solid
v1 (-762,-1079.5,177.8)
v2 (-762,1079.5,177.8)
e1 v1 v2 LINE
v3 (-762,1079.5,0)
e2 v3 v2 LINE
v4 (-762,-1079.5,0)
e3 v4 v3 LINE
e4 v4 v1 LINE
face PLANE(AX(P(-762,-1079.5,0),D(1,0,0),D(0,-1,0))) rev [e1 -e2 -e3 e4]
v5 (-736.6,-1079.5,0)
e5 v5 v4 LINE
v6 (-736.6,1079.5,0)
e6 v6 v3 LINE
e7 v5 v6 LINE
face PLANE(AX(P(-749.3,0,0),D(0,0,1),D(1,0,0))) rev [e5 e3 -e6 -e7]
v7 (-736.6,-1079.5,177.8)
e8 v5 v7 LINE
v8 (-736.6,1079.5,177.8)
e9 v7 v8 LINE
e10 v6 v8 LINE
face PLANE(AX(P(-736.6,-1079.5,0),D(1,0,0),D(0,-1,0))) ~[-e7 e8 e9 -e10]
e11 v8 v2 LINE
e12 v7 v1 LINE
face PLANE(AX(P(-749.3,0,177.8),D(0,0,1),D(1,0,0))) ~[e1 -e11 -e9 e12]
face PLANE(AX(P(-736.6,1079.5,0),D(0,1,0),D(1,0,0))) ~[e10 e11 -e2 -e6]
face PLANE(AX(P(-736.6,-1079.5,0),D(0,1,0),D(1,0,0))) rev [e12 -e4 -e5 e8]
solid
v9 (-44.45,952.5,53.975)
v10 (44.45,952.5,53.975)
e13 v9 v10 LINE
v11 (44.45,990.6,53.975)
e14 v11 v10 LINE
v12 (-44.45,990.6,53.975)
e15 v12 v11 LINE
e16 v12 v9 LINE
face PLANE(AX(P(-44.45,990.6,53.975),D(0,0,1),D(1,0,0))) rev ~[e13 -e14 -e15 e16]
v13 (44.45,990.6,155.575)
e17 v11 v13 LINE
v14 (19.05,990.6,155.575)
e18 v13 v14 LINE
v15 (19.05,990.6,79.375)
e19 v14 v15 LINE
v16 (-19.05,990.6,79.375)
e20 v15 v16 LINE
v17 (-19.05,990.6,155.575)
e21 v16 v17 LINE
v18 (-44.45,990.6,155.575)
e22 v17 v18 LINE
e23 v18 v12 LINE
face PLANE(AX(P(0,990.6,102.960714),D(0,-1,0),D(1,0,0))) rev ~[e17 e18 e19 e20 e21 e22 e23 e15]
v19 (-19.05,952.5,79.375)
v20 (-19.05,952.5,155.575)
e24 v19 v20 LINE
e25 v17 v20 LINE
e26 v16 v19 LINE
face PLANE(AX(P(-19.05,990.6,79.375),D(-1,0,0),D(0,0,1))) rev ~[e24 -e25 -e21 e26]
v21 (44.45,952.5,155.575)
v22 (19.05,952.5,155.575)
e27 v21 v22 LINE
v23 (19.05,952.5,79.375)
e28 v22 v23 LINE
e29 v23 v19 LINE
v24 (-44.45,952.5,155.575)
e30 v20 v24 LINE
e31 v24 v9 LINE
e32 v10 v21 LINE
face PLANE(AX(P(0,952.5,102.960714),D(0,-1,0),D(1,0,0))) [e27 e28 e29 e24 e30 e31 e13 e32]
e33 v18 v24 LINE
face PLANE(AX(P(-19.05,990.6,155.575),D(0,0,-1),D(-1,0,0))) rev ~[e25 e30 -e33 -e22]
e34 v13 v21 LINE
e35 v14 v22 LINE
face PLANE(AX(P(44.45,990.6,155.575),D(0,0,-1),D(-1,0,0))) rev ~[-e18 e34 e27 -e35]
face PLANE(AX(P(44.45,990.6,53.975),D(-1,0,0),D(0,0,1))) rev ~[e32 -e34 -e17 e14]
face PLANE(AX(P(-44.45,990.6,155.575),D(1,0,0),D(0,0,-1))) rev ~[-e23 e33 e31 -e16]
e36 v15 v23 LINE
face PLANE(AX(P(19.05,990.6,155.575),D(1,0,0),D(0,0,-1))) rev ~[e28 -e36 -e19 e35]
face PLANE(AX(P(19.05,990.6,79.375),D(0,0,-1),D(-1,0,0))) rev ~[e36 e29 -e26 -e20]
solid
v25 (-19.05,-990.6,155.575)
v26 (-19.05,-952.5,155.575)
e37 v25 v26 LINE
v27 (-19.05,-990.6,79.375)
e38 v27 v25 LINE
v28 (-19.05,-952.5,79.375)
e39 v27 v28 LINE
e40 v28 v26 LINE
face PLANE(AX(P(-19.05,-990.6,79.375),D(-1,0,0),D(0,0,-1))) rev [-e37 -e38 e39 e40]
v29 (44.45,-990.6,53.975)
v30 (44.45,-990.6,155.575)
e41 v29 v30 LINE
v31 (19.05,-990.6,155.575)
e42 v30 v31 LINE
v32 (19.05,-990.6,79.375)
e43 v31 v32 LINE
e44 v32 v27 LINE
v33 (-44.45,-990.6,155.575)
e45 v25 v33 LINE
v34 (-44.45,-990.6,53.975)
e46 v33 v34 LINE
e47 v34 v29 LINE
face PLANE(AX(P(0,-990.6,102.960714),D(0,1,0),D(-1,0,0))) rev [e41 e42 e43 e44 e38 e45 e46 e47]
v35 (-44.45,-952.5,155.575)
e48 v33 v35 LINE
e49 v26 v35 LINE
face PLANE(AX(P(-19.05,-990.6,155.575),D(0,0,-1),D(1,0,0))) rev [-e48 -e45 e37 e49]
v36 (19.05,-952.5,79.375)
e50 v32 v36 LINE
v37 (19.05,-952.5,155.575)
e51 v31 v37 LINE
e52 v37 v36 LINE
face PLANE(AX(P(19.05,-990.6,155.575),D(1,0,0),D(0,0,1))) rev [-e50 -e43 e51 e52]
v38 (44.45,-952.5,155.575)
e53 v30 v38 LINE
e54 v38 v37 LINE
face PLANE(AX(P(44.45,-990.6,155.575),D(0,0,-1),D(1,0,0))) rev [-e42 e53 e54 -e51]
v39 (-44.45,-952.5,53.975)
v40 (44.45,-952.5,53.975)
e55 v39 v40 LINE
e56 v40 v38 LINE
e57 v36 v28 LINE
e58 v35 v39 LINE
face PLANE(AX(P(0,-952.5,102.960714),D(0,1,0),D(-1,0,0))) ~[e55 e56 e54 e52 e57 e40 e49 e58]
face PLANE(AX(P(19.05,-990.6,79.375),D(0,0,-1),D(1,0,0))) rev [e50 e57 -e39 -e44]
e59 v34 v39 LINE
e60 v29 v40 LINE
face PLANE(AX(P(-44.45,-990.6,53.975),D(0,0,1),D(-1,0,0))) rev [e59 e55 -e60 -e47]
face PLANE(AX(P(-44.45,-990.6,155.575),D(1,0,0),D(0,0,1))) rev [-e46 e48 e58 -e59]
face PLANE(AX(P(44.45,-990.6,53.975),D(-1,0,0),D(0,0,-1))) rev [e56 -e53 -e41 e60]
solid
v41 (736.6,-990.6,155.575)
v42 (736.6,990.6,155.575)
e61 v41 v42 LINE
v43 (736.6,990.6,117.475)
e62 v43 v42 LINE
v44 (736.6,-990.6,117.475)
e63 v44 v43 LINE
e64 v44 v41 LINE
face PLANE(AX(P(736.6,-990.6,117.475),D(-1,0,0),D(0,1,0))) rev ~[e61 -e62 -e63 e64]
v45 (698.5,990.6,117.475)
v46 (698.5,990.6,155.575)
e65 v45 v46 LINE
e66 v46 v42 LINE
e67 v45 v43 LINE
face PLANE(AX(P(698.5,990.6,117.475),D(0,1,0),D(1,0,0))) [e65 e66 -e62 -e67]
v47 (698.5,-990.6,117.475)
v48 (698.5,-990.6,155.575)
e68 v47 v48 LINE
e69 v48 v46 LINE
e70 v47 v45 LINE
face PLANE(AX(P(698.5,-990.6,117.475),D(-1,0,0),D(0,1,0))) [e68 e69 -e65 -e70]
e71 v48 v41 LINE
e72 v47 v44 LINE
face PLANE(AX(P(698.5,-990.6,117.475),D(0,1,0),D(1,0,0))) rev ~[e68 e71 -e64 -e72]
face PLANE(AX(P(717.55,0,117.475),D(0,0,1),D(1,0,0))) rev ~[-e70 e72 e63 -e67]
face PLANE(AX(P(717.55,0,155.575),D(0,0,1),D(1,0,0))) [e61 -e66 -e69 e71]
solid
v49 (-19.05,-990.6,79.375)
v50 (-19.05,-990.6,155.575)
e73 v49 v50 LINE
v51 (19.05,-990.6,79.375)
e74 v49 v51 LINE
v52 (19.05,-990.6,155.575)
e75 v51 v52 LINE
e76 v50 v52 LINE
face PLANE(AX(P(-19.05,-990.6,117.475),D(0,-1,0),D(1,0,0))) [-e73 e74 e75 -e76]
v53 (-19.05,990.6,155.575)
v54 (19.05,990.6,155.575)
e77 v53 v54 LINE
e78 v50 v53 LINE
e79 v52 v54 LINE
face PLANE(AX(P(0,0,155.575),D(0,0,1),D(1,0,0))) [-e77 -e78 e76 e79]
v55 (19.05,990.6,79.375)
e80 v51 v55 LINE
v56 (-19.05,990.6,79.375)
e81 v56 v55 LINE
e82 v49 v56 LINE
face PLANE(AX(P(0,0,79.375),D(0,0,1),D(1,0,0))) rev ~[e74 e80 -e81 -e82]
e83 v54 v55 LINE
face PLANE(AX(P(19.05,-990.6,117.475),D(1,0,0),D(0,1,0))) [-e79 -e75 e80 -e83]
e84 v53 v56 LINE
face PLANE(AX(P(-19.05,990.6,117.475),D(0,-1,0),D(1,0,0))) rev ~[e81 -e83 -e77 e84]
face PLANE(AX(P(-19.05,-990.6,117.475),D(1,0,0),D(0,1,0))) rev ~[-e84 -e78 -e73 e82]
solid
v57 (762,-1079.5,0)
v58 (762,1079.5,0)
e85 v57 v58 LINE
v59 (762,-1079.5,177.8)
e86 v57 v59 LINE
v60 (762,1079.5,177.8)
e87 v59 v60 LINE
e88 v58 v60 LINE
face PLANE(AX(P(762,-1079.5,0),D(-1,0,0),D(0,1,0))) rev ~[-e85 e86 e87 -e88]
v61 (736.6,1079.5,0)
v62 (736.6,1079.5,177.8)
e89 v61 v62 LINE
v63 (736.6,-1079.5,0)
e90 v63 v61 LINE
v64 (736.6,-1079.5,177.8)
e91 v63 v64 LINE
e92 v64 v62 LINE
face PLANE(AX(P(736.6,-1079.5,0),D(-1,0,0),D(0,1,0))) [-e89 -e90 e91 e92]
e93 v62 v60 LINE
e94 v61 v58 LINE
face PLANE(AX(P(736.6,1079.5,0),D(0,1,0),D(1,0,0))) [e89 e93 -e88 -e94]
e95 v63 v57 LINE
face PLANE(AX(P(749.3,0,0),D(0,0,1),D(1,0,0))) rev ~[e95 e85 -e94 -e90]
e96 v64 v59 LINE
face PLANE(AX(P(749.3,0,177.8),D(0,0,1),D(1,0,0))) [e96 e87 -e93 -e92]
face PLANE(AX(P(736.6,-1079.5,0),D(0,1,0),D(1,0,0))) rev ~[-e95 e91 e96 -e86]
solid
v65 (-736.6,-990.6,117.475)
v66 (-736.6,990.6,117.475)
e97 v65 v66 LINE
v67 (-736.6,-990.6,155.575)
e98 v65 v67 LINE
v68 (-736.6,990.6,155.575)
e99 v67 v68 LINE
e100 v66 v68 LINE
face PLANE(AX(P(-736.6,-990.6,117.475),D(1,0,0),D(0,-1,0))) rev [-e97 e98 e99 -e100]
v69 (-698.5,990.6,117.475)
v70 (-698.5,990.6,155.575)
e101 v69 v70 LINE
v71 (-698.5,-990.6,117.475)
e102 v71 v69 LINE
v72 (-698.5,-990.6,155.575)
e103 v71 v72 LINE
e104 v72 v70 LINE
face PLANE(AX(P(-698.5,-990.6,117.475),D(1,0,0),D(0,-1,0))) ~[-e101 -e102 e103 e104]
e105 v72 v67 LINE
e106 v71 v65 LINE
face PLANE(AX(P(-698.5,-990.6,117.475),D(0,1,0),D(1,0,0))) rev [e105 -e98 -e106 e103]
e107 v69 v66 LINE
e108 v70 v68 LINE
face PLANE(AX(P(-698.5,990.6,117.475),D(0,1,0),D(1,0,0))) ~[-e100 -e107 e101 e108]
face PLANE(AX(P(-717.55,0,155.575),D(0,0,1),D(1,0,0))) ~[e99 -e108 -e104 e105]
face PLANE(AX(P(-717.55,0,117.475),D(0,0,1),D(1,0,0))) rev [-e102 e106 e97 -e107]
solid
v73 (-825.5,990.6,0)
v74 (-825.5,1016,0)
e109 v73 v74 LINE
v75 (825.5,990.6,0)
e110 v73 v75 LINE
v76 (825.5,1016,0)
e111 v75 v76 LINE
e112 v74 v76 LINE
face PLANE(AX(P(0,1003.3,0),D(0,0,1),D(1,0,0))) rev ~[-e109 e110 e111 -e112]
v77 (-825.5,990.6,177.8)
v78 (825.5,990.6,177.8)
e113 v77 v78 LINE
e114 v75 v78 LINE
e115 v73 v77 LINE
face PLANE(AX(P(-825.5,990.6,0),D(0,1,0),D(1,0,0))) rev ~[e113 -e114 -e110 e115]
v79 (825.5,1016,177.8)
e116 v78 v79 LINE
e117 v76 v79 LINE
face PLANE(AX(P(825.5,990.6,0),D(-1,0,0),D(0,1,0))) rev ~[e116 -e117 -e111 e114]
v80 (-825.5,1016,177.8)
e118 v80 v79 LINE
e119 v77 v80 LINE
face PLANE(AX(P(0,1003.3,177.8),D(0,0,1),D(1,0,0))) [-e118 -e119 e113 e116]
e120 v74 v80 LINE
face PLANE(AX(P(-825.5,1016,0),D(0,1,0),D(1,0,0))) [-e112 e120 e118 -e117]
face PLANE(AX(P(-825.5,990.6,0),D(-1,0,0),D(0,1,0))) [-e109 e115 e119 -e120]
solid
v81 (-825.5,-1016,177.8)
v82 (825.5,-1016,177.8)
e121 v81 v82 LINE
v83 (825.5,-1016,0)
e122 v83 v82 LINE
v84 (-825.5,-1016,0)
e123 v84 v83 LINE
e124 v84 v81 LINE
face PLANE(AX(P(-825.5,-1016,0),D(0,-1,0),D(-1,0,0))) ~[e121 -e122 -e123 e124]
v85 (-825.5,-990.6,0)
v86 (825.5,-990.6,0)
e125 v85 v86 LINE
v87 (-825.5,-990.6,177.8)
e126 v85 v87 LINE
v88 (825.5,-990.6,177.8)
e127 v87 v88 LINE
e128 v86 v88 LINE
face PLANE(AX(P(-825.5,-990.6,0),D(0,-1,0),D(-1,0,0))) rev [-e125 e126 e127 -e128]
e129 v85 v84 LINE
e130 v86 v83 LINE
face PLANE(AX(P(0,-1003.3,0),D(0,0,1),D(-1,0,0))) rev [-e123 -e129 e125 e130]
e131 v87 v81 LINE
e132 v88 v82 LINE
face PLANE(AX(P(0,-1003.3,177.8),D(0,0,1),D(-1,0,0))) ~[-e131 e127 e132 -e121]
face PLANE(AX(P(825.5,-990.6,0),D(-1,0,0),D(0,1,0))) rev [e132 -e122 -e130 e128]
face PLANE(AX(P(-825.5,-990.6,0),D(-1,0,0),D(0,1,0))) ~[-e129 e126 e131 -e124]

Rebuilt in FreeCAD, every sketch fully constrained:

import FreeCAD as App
import Part
import Sketcher
Q = App.Units.Quantity


def add_polygon(sketch, points):
    """Adds a closed chain of lines whose ends are joined by coincident constraints."""
    first, n = sketch.GeometryCount, len(points)
    for a, b in zip(points, points[1:] + points[:1]):
        sketch.addGeometry(Part.LineSegment(App.Vector(*a, 0), App.Vector(*b, 0)), False)
    for i in range(n):
        sketch.addConstraint(Sketcher.Constraint("Coincident", first + i, 2, first + (i + 1) % n, 1))

doc = App.newDocument("Part")
body = doc.addObject("PartDesign::Body", "Body")

sketch1 = body.newObject("Sketcher::SketchObject", "Sketch")
sketch1.AttachmentSupport = (doc.getObject("XY_Plane"), [""])
sketch1.MapMode = "FlatFace"
add_polygon(sketch1, [(-825.5, 1016), (-825.5, 990.6), (825.5, 990.6), (825.5, 1016)])
sketch1.addConstraint(Sketcher.Constraint("Vertical", 0))
sketch1.addConstraint(Sketcher.Constraint("Horizontal", 1))
sketch1.addConstraint(Sketcher.Constraint("Vertical", 2))
sketch1.addConstraint(Sketcher.Constraint("Horizontal", 3))
sketch1.addConstraint(Sketcher.Constraint("DistanceX", 1, 1, 1, 2, Q("65 in")))
sketch1.addConstraint(Sketcher.Constraint("DistanceY", 0, 2, 0, 1, Q("1 in")))
sketch1.addConstraint(Sketcher.Constraint("DistanceY", -1, 1, 0, 2, Q("39 in")))
sketch1.addConstraint(Sketcher.Constraint("DistanceX", 0, 2, -1, 1, Q("32.5 in")))
pad1 = body.newObject("PartDesign::Pad", "Pad")
pad1.Profile = sketch1
pad1.Length = Q("7 in")
body2 = doc.addObject("PartDesign::Body", "Body001")

sketch2 = body2.newObject("Sketcher::SketchObject", "Sketch001")
sketch2.AttachmentSupport = (doc.getObject("XY_Plane001"), [""])
sketch2.MapMode = "FlatFace"
add_polygon(sketch2, [(736.6, 1079.5), (736.6, -1079.5), (762, -1079.5), (762, 1079.5)])
sketch2.addConstraint(Sketcher.Constraint("Vertical", 0))
sketch2.addConstraint(Sketcher.Constraint("Horizontal", 1))
sketch2.addConstraint(Sketcher.Constraint("Vertical", 2))
sketch2.addConstraint(Sketcher.Constraint("Horizontal", 3))
sketch2.addConstraint(Sketcher.Constraint("DistanceX", 1, 1, 1, 2, Q("1 in")))
sketch2.addConstraint(Sketcher.Constraint("DistanceY", 0, 2, 0, 1, Q("85 in")))
sketch2.addConstraint(Sketcher.Constraint("DistanceX", -1, 1, 0, 2, Q("29 in")))
sketch2.addConstraint(Sketcher.Constraint("DistanceY", 0, 2, -1, 1, Q("42.5 in")))
pad2 = body2.newObject("PartDesign::Pad", "Pad001")
pad2.Profile = sketch2
pad2.Length = Q("7 in")
body3 = doc.addObject("PartDesign::Body", "Body002")

sketch3 = body3.newObject("Sketcher::SketchObject", "Sketch002")
sketch3.AttachmentSupport = (doc.getObject("XY_Plane002"), [""])
sketch3.MapMode = "FlatFace"
sketch3.AttachmentOffset = App.Placement(App.Vector(0, 0, 4.625 * 25.4), App.Rotation())
add_polygon(sketch3, [(698.5, 990.6), (698.5, -990.6), (736.6, -990.6), (736.6, 990.6)])
sketch3.addConstraint(Sketcher.Constraint("Vertical", 0))
sketch3.addConstraint(Sketcher.Constraint("Horizontal", 1))
sketch3.addConstraint(Sketcher.Constraint("Vertical", 2))
sketch3.addConstraint(Sketcher.Constraint("Horizontal", 3))
sketch3.addConstraint(Sketcher.Constraint("DistanceY", 0, 2, 0, 1, Q("78 in")))
sketch3.addConstraint(Sketcher.Constraint("DistanceX", 1, 1, 1, 2, Q("1.5 in")))
sketch3.addConstraint(Sketcher.Constraint("DistanceY", 0, 2, -1, 1, Q("39 in")))
sketch3.addConstraint(Sketcher.Constraint("DistanceX", -1, 1, 1, 2, Q("29 in")))
pad3 = body3.newObject("PartDesign::Pad", "Pad002")
pad3.Profile = sketch3
pad3.Length = Q("1.5 in")
body4 = doc.addObject("PartDesign::Body", "Body003")
doc.recompute()

mirroring = doc.addObject("Part::Mirroring", "Mirroring")
mirroring.Source = body
mirroring.Base = App.Vector(0, 0, 0)
mirroring.Normal = App.Vector(0, -1, 0)
body4.BaseFeature = mirroring
doc.recompute()
body5 = doc.addObject("PartDesign::Body", "Body004")
doc.recompute()

mirroring2 = doc.addObject("Part::Mirroring", "Mirroring001")
mirroring2.Source = body2
mirroring2.Base = App.Vector(0, 0, 0)
mirroring2.Normal = App.Vector(1, 0, 0)
body5.BaseFeature = mirroring2
doc.recompute()
body6 = doc.addObject("PartDesign::Body", "Body005")
doc.recompute()

mirroring3 = doc.addObject("Part::Mirroring", "Mirroring002")
mirroring3.Source = body3
mirroring3.Base = App.Vector(0, 0, 0)
mirroring3.Normal = App.Vector(1, 0, 0)
body6.BaseFeature = mirroring3
doc.recompute()
body7 = doc.addObject("PartDesign::Body", "Body006")

sketch4 = body7.newObject("Sketcher::SketchObject", "Sketch003")
sketch4.AttachmentSupport = (doc.getObject("XY_Plane006"), [""])
sketch4.MapMode = "FlatFace"
sketch4.AttachmentOffset = App.Placement(App.Vector(0, 0, 4.625 * 25.4), App.Rotation())
add_polygon(sketch4, [(-19.05, 990.6), (-19.05, -990.6), (19.05, -990.6), (19.05, 990.6)])
sketch4.addConstraint(Sketcher.Constraint("Vertical", 0))
sketch4.addConstraint(Sketcher.Constraint("Horizontal", 1))
sketch4.addConstraint(Sketcher.Constraint("Vertical", 2))
sketch4.addConstraint(Sketcher.Constraint("Horizontal", 3))
sketch4.addConstraint(Sketcher.Constraint("Symmetric", 0, 2, 2, 2, -1, 1))
sketch4.addConstraint(Sketcher.Constraint("DistanceY", 0, 2, 0, 1, Q("78 in")))
sketch4.addConstraint(Sketcher.Constraint("DistanceX", 1, 1, 1, 2, Q("1.5 in")))
pad4 = body7.newObject("PartDesign::Pad", "Pad003")
pad4.Profile = sketch4
pad4.Length = Q("3 in")
pad4.Midplane = True
body8 = doc.addObject("PartDesign::Body", "Body007")

sketch5 = body8.newObject("Sketcher::SketchObject", "Sketch004")
sketch5.AttachmentSupport = (doc.getObject("XZ_Plane007"), [""])
sketch5.MapMode = "FlatFace"
sketch5.AttachmentOffset = App.Placement(App.Vector(0, 0, -39 * 25.4), App.Rotation())
add_polygon(sketch5, [(19.05, 155.575), (19.05, 79.375), (-19.05, 79.375), (-19.05, 155.575), (-44.45, 155.575), (-44.45, 53.975), (44.45, 53.975), (44.45, 155.575)])
sketch5.addConstraint(Sketcher.Constraint("Vertical", 0))
sketch5.addConstraint(Sketcher.Constraint("Horizontal", 1))
sketch5.addConstraint(Sketcher.Constraint("Vertical", 2))
sketch5.addConstraint(Sketcher.Constraint("Horizontal", 3))
sketch5.addConstraint(Sketcher.Constraint("Vertical", 4))
sketch5.addConstraint(Sketcher.Constraint("Horizontal", 5))
sketch5.addConstraint(Sketcher.Constraint("Vertical", 6))
sketch5.addConstraint(Sketcher.Constraint("Horizontal", 7))
sketch5.addConstraint(Sketcher.Constraint("Symmetric", 3, 2, 6, 2, -2))
sketch5.addConstraint(Sketcher.Constraint("Equal", 3, 7))
sketch5.addConstraint(Sketcher.Constraint("DistanceX", 3, 2, 3, 1, Q("1 in")))
sketch5.addConstraint(Sketcher.Constraint("DistanceY", 0, 2, 0, 1, Q("3 in")))
sketch5.addConstraint(Sketcher.Constraint("DistanceY", 4, 2, 4, 1, Q("4 in")))
sketch5.addConstraint(Sketcher.Constraint("DistanceX", 1, 2, 1, 1, Q("1.5 in")))
sketch5.addConstraint(Sketcher.Constraint("DistanceY", -1, 1, 0, 2, Q("3.125 in")))
pad5 = body8.newObject("PartDesign::Pad", "Pad004")
pad5.Profile = sketch5
pad5.Length = Q("1.5 in")
body9 = doc.addObject("PartDesign::Body", "Body008")
doc.recompute()

mirroring4 = doc.addObject("Part::Mirroring", "Mirroring003")
mirroring4.Source = body8
mirroring4.Base = App.Vector(0, 0, 0)
mirroring4.Normal = App.Vector(0, -1, 0)
body9.BaseFeature = mirroring4
doc.recompute()
mirroring.Visibility = False
mirroring2.Visibility = False
mirroring3.Visibility = False
mirroring4.Visibility = False

doc.recompute()
